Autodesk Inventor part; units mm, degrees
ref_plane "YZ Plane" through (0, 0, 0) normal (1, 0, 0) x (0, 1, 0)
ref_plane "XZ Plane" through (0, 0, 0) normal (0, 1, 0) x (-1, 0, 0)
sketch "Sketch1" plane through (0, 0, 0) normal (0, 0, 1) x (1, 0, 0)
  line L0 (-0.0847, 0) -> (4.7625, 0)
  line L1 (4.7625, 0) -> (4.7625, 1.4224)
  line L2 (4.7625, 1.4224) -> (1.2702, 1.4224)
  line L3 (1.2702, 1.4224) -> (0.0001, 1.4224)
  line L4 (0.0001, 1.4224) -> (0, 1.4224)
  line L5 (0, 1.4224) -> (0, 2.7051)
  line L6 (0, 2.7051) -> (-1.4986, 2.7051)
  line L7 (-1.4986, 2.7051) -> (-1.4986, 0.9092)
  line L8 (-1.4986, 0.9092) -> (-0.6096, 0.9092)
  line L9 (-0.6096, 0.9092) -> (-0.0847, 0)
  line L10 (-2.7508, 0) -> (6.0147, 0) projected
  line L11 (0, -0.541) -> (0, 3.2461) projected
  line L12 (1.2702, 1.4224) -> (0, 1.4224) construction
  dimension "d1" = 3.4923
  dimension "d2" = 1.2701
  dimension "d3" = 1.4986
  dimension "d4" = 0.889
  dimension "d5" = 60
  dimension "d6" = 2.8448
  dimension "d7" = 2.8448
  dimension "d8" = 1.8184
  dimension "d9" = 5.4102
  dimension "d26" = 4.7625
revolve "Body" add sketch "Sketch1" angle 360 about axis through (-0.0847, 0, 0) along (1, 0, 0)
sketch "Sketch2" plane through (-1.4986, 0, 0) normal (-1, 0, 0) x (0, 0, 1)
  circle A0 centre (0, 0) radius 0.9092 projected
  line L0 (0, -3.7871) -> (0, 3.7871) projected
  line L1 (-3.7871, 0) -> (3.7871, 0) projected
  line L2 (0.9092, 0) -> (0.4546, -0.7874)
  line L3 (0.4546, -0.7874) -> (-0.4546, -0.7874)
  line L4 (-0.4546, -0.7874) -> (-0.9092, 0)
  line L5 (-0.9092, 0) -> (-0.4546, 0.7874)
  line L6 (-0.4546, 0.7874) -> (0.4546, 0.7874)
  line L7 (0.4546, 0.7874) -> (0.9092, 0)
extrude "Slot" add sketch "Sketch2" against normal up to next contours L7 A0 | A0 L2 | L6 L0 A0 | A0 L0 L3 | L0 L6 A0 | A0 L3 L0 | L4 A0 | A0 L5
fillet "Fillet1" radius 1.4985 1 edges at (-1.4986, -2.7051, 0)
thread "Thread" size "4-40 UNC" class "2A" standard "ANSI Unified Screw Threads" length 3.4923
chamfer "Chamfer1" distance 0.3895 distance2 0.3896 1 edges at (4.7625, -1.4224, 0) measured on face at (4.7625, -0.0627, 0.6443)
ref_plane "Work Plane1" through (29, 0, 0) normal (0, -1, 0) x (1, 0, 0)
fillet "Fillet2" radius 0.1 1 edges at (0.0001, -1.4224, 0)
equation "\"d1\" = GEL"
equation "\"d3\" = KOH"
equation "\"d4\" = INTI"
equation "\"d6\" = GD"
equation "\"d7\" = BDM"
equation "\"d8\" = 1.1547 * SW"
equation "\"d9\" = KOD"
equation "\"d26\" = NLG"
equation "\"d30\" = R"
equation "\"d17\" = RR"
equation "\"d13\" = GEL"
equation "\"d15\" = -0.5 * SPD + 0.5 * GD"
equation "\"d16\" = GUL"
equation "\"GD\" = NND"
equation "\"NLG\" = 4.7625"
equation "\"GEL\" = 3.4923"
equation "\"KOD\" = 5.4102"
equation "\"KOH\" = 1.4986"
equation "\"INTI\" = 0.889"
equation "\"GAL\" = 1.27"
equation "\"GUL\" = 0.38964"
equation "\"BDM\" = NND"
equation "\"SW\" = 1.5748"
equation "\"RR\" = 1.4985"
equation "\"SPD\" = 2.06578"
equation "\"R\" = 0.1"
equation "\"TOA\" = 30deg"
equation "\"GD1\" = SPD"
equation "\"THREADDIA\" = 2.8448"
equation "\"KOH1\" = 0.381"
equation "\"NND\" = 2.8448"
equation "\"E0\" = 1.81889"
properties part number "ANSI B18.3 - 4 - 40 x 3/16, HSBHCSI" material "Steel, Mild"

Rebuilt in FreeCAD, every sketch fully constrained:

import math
import FreeCAD as App
import Part
import Sketcher

V = App.Vector
Q = App.Units.Quantity


def edges_at(feature, points):
    """Names of the edges that pass closest to the given points."""
    edges = feature.Shape.Edges
    near = lambda p: min(range(len(edges)), key=lambda i: edges[i].distToShape(Part.Vertex(*p))[0])
    return sorted({f"Edge{near(p) + 1}" for p in points})

doc = App.newDocument("Part")
body = doc.addObject("PartDesign::Body", "Body")

# Sketch on XY plane
sketch1 = body.newObject("Sketcher::SketchObject", "Sketch")
sketch1.AttachmentSupport = (doc.getObject("XY_Plane"), [""])
sketch1.MapMode = "FlatFace"
sketch1.addGeometry(Part.LineSegment(V(-0.6096, 0.9092, 0), V(-0.0847, 0, 0)), False)
sketch1.addGeometry(Part.LineSegment(V(-0.0847, 0, 0), V(4.7625, 0, 0)), False)
sketch1.addGeometry(Part.LineSegment(V(4.7625, 0, 0), V(4.7625, 1.4224, 0)), False)
sketch1.addGeometry(Part.LineSegment(V(4.7625, 1.4224, 0), V(0.0001, 1.4224, 0)), False)
sketch1.addGeometry(Part.LineSegment(V(0.0001, 1.4224, 0), V(0, 2.7051, 0)), False)
sketch1.addGeometry(Part.LineSegment(V(0, 2.7051, 0), V(-1.4986, 2.7051, 0)), False)
sketch1.addGeometry(Part.LineSegment(V(-1.4986, 2.7051, 0), V(-1.4986, 0.9092, 0)), False)
sketch1.addGeometry(Part.LineSegment(V(-1.4986, 0.9092, 0), V(-0.6096, 0.9092, 0)), False)
sketch1.addConstraint(Sketcher.Constraint("Coincident", 0, 2, 1, 1))
sketch1.addConstraint(Sketcher.Constraint("Coincident", 1, 2, 2, 1))
sketch1.addConstraint(Sketcher.Constraint("Coincident", 2, 2, 3, 1))
sketch1.addConstraint(Sketcher.Constraint("Coincident", 3, 2, 4, 1))
sketch1.addConstraint(Sketcher.Constraint("Coincident", 4, 2, 5, 1))
sketch1.addConstraint(Sketcher.Constraint("Coincident", 5, 2, 6, 1))
sketch1.addConstraint(Sketcher.Constraint("Coincident", 6, 2, 7, 1))
sketch1.addConstraint(Sketcher.Constraint("Coincident", 7, 2, 0, 1))
sketch1.addConstraint(Sketcher.Constraint("Horizontal", 1))
sketch1.addConstraint(Sketcher.Constraint("Vertical", 2))
sketch1.addConstraint(Sketcher.Constraint("Horizontal", 3))
sketch1.addConstraint(Sketcher.Constraint("Vertical", 4))
sketch1.addConstraint(Sketcher.Constraint("Horizontal", 5))
sketch1.addConstraint(Sketcher.Constraint("Vertical", 6))
sketch1.addConstraint(Sketcher.Constraint("Horizontal", 7))
sketch1.addConstraint(Sketcher.Constraint("PointOnObject", 0, 2, -1))
sketch1.addConstraint(Sketcher.Constraint("PointOnObject", 3, 2, -2))
sketch1.addConstraint(Sketcher.Constraint("DistanceX", 3, 2, 3, 1, Q("0.1875 in")))
sketch1.addConstraint(Sketcher.Constraint("DistanceX", 5, 2, 5, 1, Q("0.059 in")))
sketch1.addConstraint(Sketcher.Constraint("DistanceX", 7, 1, 7, 2, Q("0.035 in")))
sketch1.addConstraint(Sketcher.Constraint("DistanceY", 2, 1, 2, 2, Q("0.056 in")))
sketch1.addConstraint(Sketcher.Constraint("DistanceY", 4, 1, 4, 2, Q("0.0505 in")))
sketch1.addConstraint(Sketcher.Constraint("DistanceY", 6, 2, 6, 1, Q("0.0707 in")))
sketch1.addConstraint(Sketcher.Constraint("DistanceX", 1, 1, 1, 2, Q("4.8472 mm")))
revolution = body.newObject("PartDesign::Revolution", "Revolution")
revolution.Profile = sketch1
revolution.ReferenceAxis = (sketch1, ["H_Axis"])
revolution.Angle = 360

# Sketch on YZ plane
sketch2 = body.newObject("Sketcher::SketchObject", "Sketch001")
sketch2.AttachmentSupport = (doc.getObject("YZ_Plane"), [""])
sketch2.MapMode = "FlatFace"
sketch2.AttachmentOffset = App.Placement(V(0, 0, -0.059 * 25.4), App.Rotation())
sketch2.addGeometry(Part.LineSegment(V(0.7874, 0.4546, 0), V(0, 0.9092, 0)), False)
sketch2.addGeometry(Part.ArcOfCircle(Part.Circle(V(0, 0, 0), V(0, 0, 1), 0.9092), math.radians(29.999694), math.radians(90)), False)
sketch2.addGeometry(Part.ArcOfCircle(Part.Circle(V(0, 0, 0), V(0, 0, 1), 0.9092), math.radians(90), math.radians(150.000306)), False)
sketch2.addGeometry(Part.LineSegment(V(0, 0.9092, 0), V(-0.7874, 0.4546, 0)), False)
sketch2.addGeometry(Part.ArcOfCircle(Part.Circle(V(0, 0, 0), V(0, 0, 1), 0.9092), math.radians(-29.999694), math.radians(29.999694)), False)
sketch2.addGeometry(Part.LineSegment(V(0.7874, 0.4546, 0), V(0.7874, -0.4546, 0)), False)
sketch2.addGeometry(Part.LineSegment(V(-0.7874, 0.4546, 0), V(-0.7874, -0.4546, 0)), False)
sketch2.addGeometry(Part.ArcOfCircle(Part.Circle(V(0, 0, 0), V(0, 0, 1), 0.9092), math.radians(150.000306), math.radians(209.999694)), False)
sketch2.addGeometry(Part.LineSegment(V(-0.7874, -0.4546, 0), V(0, -0.9092, 0)), False)
sketch2.addGeometry(Part.ArcOfCircle(Part.Circle(V(0, 0, 0), V(0, 0, 1), 0.9092), math.radians(-150.000306), math.radians(-90)), False)
sketch2.addGeometry(Part.ArcOfCircle(Part.Circle(V(0, 0, 0), V(0, 0, 1), 0.9092), math.radians(-90), math.radians(-29.999694)), False)
sketch2.addGeometry(Part.LineSegment(V(0, -0.9092, 0), V(0.7874, -0.4546, 0)), False)
sketch2.addConstraint(Sketcher.Constraint("Coincident", 0, 1, 1, 1))
sketch2.addConstraint(Sketcher.Constraint("Coincident", 1, 2, 0, 2))
sketch2.addConstraint(Sketcher.Constraint("Coincident", 2, 1, 3, 1))
sketch2.addConstraint(Sketcher.Constraint("Coincident", 3, 2, 2, 2))
sketch2.addConstraint(Sketcher.Constraint("Coincident", 4, 1, 5, 2))
sketch2.addConstraint(Sketcher.Constraint("Coincident", 5, 1, 4, 2))
sketch2.addConstraint(Sketcher.Constraint("Coincident", 6, 1, 7, 1))
sketch2.addConstraint(Sketcher.Constraint("Coincident", 7, 2, 6, 2))
sketch2.addConstraint(Sketcher.Constraint("Coincident", 8, 1, 9, 1))
sketch2.addConstraint(Sketcher.Constraint("Coincident", 9, 2, 8, 2))
sketch2.addConstraint(Sketcher.Constraint("Coincident", 10, 1, 11, 1))
sketch2.addConstraint(Sketcher.Constraint("Coincident", 11, 2, 10, 2))
sketch2.addConstraint(Sketcher.Constraint("Vertical", 5))
sketch2.addConstraint(Sketcher.Constraint("Vertical", 6))
sketch2.addConstraint(Sketcher.Constraint("Coincident", 1, 3, -1, 1))
sketch2.addConstraint(Sketcher.Constraint("Coincident", 2, 3, -1, 1))
sketch2.addConstraint(Sketcher.Constraint("Coincident", 4, 3, -1, 1))
sketch2.addConstraint(Sketcher.Constraint("Coincident", 7, 3, -1, 1))
sketch2.addConstraint(Sketcher.Constraint("Coincident", 9, 3, -1, 1))
sketch2.addConstraint(Sketcher.Constraint("Coincident", 10, 3, -1, 1))
sketch2.addConstraint(Sketcher.Constraint("Coincident", 2, 1, 1, 2))
sketch2.addConstraint(Sketcher.Constraint("Coincident", 5, 1, 0, 1))
sketch2.addConstraint(Sketcher.Constraint("Coincident", 6, 1, 3, 2))
sketch2.addConstraint(Sketcher.Constraint("Coincident", 8, 1, 7, 2))
sketch2.addConstraint(Sketcher.Constraint("Coincident", 10, 1, 9, 2))
sketch2.addConstraint(Sketcher.Constraint("PointOnObject", 1, 2, -2))
sketch2.addConstraint(Sketcher.Constraint("PointOnObject", 9, 2, -2))
sketch2.addConstraint(Sketcher.Constraint("Parallel", 0, 8))
sketch2.addConstraint(Sketcher.Constraint("Parallel", 3, 11))
sketch2.addConstraint(Sketcher.Constraint("Angle", 0, Q("150.0003 deg")))
sketch2.addConstraint(Sketcher.Constraint("Radius", 1, Q("0.0358 in")))
pad1 = body.newObject("PartDesign::Pad", "Pad")
pad1.Profile = sketch2
pad1.Type = "UpToFirst"
doc.recompute()

fillet = body.newObject("PartDesign::Fillet", "Fillet")
fillet.Base = (pad1, edges_at(pad1, [(-1.499, -2.705, 0)]))
fillet.Radius = Q("0.0589961 in")
doc.recompute()

chamfer = body.newObject("PartDesign::Chamfer", "Chamfer")
chamfer.Base = (fillet, edges_at(fillet, [(4.763, -1.422, 0)]))
chamfer.ChamferType = "Two distances"
chamfer.Size = 0.3895
chamfer.Size2 = 0.3896
doc.recompute()

fillet2 = body.newObject("PartDesign::Fillet", "Fillet001")
fillet2.Base = (chamfer, edges_at(chamfer, [(0, -1.422, 0)]))
fillet2.Radius = 0.1

doc.recompute()
